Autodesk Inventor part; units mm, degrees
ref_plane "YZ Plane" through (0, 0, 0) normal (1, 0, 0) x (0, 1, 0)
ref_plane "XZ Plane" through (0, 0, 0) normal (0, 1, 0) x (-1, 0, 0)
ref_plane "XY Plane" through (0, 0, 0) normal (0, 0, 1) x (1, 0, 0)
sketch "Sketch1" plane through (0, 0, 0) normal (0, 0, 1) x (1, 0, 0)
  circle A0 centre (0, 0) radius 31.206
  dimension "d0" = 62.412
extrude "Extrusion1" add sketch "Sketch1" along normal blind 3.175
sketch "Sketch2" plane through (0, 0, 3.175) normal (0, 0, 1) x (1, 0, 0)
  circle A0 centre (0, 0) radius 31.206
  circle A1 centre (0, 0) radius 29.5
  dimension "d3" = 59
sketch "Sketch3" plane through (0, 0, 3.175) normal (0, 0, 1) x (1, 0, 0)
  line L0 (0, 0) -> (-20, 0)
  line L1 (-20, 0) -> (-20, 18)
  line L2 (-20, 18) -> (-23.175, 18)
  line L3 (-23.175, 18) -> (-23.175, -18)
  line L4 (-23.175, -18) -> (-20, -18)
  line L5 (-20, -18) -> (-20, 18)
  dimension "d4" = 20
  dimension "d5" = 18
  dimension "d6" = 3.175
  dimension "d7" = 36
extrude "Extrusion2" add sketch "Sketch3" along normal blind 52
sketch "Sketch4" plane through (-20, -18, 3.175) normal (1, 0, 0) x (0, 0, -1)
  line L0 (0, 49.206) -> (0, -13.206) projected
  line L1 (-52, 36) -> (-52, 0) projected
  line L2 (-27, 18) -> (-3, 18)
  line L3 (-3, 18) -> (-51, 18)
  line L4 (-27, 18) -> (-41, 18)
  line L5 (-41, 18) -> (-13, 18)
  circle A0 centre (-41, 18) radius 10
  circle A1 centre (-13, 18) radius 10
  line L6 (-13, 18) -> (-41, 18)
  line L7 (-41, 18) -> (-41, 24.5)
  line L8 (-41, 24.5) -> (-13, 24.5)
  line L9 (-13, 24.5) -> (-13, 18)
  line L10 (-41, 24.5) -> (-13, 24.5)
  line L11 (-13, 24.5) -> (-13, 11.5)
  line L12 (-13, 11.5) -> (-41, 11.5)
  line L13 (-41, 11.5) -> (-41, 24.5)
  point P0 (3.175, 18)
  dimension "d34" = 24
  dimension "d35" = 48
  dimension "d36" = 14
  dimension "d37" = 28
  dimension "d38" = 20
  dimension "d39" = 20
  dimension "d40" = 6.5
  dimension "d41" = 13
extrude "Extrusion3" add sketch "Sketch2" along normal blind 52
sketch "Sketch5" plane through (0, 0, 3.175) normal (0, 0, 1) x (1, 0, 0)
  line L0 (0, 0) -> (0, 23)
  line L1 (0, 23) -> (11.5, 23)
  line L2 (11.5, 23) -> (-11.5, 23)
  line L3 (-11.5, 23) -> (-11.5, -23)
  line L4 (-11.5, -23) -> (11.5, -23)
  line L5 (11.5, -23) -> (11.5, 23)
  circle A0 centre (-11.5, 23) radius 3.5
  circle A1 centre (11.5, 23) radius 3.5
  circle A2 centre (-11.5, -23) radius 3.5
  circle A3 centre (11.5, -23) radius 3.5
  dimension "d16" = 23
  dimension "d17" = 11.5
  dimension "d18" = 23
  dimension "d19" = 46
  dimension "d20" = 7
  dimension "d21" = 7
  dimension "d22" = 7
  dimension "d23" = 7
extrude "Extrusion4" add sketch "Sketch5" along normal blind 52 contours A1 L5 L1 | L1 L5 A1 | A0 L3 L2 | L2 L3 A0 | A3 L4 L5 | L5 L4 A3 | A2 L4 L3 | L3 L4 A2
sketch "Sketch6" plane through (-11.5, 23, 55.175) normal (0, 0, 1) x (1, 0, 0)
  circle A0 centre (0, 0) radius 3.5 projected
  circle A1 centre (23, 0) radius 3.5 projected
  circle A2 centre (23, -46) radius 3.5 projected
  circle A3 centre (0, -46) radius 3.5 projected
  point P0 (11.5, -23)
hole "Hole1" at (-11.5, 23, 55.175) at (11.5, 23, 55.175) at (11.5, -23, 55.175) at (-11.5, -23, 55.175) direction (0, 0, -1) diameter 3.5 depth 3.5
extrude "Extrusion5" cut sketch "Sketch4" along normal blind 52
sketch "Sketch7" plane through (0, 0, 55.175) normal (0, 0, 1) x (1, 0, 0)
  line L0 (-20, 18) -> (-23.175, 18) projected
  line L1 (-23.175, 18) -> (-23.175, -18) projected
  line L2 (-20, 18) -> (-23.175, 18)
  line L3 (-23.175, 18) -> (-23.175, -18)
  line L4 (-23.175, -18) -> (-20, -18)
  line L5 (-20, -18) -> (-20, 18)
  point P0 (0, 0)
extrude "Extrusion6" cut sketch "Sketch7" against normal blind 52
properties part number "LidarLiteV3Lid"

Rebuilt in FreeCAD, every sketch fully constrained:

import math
import FreeCAD as App
import Part
import Sketcher
from FreeCAD import Vector
Q = App.Units.Quantity


def add_polygon(sketch, points):
    """Adds a closed chain of lines whose ends are joined by coincident constraints."""
    first, n = sketch.GeometryCount, len(points)
    for a, b in zip(points, points[1:] + points[:1]):
        sketch.addGeometry(Part.LineSegment(App.Vector(*a, 0), App.Vector(*b, 0)), False)
    for i in range(n):
        sketch.addConstraint(Sketcher.Constraint("Coincident", first + i, 2, first + (i + 1) % n, 1))

doc = App.newDocument("Part")
body = doc.addObject("PartDesign::Body", "Body")

sketch1 = doc.addObject("Sketcher::SketchObject", "Sketch")
body.addObject(sketch1)
sketch1.AttachmentSupport = (doc.XY_Plane, [""])
sketch1.MapMode = "FlatFace"
sketch1.addGeometry(Part.Circle(Vector(0, 0, 0), Vector(0, 0, 1), 31.206), False)
sketch1.addConstraint([
    Sketcher.Constraint("Coincident", 0, 3, -1, 1),
    Sketcher.Constraint("Diameter", 0, Q("62.412 mm")),
])
pad1 = doc.addObject("PartDesign::Pad", "Pad")
body.addObject(pad1)
pad1.Profile = sketch1
pad1.Length = 3.175

sketch2 = doc.addObject("Sketcher::SketchObject", "Sketch001")
body.addObject(sketch2)
sketch2.AttachmentSupport = (doc.XY_Plane, [""])
sketch2.MapMode = "FlatFace"
sketch2.AttachmentOffset = App.Placement(Vector(0, 0, 3.175), App.Rotation())
add_polygon(sketch2, [(-20, -18), (-20, 18), (-23.175, 18), (-23.175, -18)])
sketch2.addConstraint([
    Sketcher.Constraint("Vertical", 0),
    Sketcher.Constraint("Horizontal", 1),
    Sketcher.Constraint("Vertical", 2),
    Sketcher.Constraint("Horizontal", 3),
    Sketcher.Constraint("DistanceY", 0, 1, 0, 2, Q("36 mm")),
    Sketcher.Constraint("DistanceX", 0, 2, -1, 1, Q("20 mm")),
    Sketcher.Constraint("DistanceY", -1, 1, 0, 2, Q("18 mm")),
    Sketcher.Constraint("DistanceX", 1, 2, 1, 1, Q("3.175 mm")),
])
pad2 = doc.addObject("PartDesign::Pad", "Pad001")
body.addObject(pad2)
pad2.Profile = sketch2
pad2.Length = 52

sketch3 = doc.addObject("Sketcher::SketchObject", "Sketch002")
body.addObject(sketch3)
sketch3.AttachmentSupport = (doc.XY_Plane, [""])
sketch3.MapMode = "FlatFace"
sketch3.AttachmentOffset = App.Placement(Vector(0, 0, 3.175), App.Rotation())
sketch3.addGeometry([
    Part.Circle(Vector(0, 0, 0), Vector(0, 0, 1), 31.206),
    Part.Circle(Vector(0, 0, 0), Vector(0, 0, 1), 29.5),
], False)
sketch3.addConstraint([
    Sketcher.Constraint("Coincident", 0, 3, -1, 1),
    Sketcher.Constraint("Coincident", 1, 3, -1, 1),
    Sketcher.Constraint("Diameter", 1, Q("59 mm")),
    Sketcher.Constraint("Diameter", 0, Q("62.412 mm")),
])
pad3 = doc.addObject("PartDesign::Pad", "Pad002")
body.addObject(pad3)
pad3.Profile = sketch3
pad3.Length = 52

sketch4 = doc.addObject("Sketcher::SketchObject", "Sketch003")
body.addObject(sketch4)
sketch4.AttachmentSupport = (doc.XY_Plane, [""])
sketch4.MapMode = "FlatFace"
sketch4.AttachmentOffset = App.Placement(Vector(0, 0, 3.175), App.Rotation())
sketch4.addGeometry([
    Part.Circle(Vector(11.5, 23, 0), Vector(0, 0, 1), 3.5),
    Part.Circle(Vector(-11.5, 23, 0), Vector(0, 0, 1), 3.5),
    Part.Circle(Vector(11.5, -23, 0), Vector(0, 0, 1), 3.5),
    Part.Circle(Vector(-11.5, -23, 0), Vector(0, 0, 1), 3.5),
], False)
sketch4.addConstraint([
    Sketcher.Constraint("Equal", 0, 1),
    Sketcher.Constraint("Equal", 1, 2),
    Sketcher.Constraint("Equal", 2, 3),
    Sketcher.Constraint("Symmetric", 1, 3, 2, 3, -1, 1),
    Sketcher.Constraint("Symmetric", 0, 3, 3, 3, -1, 1),
    Sketcher.Constraint("Symmetric", 0, 3, 1, 3, -2),
    Sketcher.Constraint("Diameter", 0, Q("7 mm")),
    Sketcher.Constraint("DistanceY", -1, 1, 0, 3, Q("23 mm")),
    Sketcher.Constraint("DistanceX", 1, 3, 0, 3, Q("23 mm")),
])
pad4 = doc.addObject("PartDesign::Pad", "Pad003")
body.addObject(pad4)
pad4.Profile = sketch4
pad4.Length = 52

sketch5 = doc.addObject("Sketcher::SketchObject", "Sketch004")
body.addObject(sketch5)
sketch5.AttachmentSupport = (doc.XY_Plane, [""])
sketch5.MapMode = "FlatFace"
sketch5.AttachmentOffset = App.Placement(Vector(0, 0, 55.175), App.Rotation())
sketch5.addGeometry([
    Part.Circle(Vector(-11.5, 23, 0), Vector(0, 0, 1), 1.75),
    Part.Circle(Vector(11.5, 23, 0), Vector(0, 0, 1), 1.75),
    Part.Circle(Vector(11.5, -23, 0), Vector(0, 0, 1), 1.75),
    Part.Circle(Vector(-11.5, -23, 0), Vector(0, 0, 1), 1.75),
], False)
sketch5.addConstraint([
    Sketcher.Constraint("Equal", 0, 1),
    Sketcher.Constraint("Equal", 1, 2),
    Sketcher.Constraint("Equal", 2, 3),
    Sketcher.Constraint("Symmetric", 0, 3, 2, 3, -1, 1),
    Sketcher.Constraint("Symmetric", 1, 3, 3, 3, -1, 1),
    Sketcher.Constraint("Symmetric", 0, 3, 1, 3, -2),
    Sketcher.Constraint("Diameter", 0, Q("3.5 mm")),
    Sketcher.Constraint("DistanceY", -1, 1, 0, 3, Q("23 mm")),
    Sketcher.Constraint("DistanceX", 0, 3, 1, 3, Q("23 mm")),
])
doc.recompute()
hole = doc.addObject("PartDesign::Hole", "Hole")
body.addObject(hole)
hole.Profile = sketch5
hole.ThreadType = "None"
hole.Diameter = 3.5
hole.DepthType = "Dimension"
hole.Depth = 3.5
hole.DrillPoint = "Flat"

sketch6 = doc.addObject("Sketcher::SketchObject", "Sketch005")
body.addObject(sketch6)
sketch6.AttachmentSupport = (doc.YZ_Plane, [""])
sketch6.MapMode = "FlatFace"
sketch6.AttachmentOffset = App.Placement(Vector(0, 0, -20), App.Rotation())
sketch6.addGeometry([
    Part.LineSegment(Vector(6.5, 23.774342, 0), Vector(6.5, 36.575658, 0)),
    Part.ArcOfCircle(Part.Circle(Vector(0, 44.175, 0), Vector(0, 0, 1), 10), math.radians(-49.458398), math.radians(229.458398)),
    Part.LineSegment(Vector(-6.5, 36.575658, 0), Vector(-6.5, 23.774342, 0)),
    Part.ArcOfCircle(Part.Circle(Vector(0, 16.175, 0), Vector(0, 0, 1), 10), math.radians(130.541602), math.radians(409.458398)),
], False)
sketch6.addConstraint([
    Sketcher.Constraint("Coincident", 0, 2, 1, 1),
    Sketcher.Constraint("Coincident", 1, 2, 2, 1),
    Sketcher.Constraint("Coincident", 2, 2, 3, 1),
    Sketcher.Constraint("Coincident", 3, 2, 0, 1),
    Sketcher.Constraint("Vertical", 0),
    Sketcher.Constraint("Vertical", 2),
    Sketcher.Constraint("Equal", 1, 3),
    Sketcher.Constraint("Symmetric", 0, 2, 1, 2, -2),
    Sketcher.Constraint("PointOnObject", 3, 3, -2),
    Sketcher.Constraint("Radius", 1, Q("10 mm")),
    Sketcher.Constraint("DistanceY", 3, 3, 1, 3, Q("28 mm")),
    Sketcher.Constraint("DistanceX", 1, 2, 0, 2, Q("13 mm")),
    Sketcher.Constraint("DistanceY", -1, 1, 1, 3, Q("44.175 mm")),
])
pocket1 = doc.addObject("PartDesign::Pocket", "Pocket")
body.addObject(pocket1)
pocket1.Profile = sketch6
pocket1.Length = 52
pocket1.Reversed = True

sketch7 = doc.addObject("Sketcher::SketchObject", "Sketch006")
body.addObject(sketch7)
sketch7.AttachmentSupport = (doc.XY_Plane, [""])
sketch7.MapMode = "FlatFace"
sketch7.AttachmentOffset = App.Placement(Vector(0, 0, 55.175), App.Rotation())
add_polygon(sketch7, [(-20, -18), (-20, 18), (-23.175, 18), (-23.175, -18)])
sketch7.addConstraint([
    Sketcher.Constraint("Vertical", 0),
    Sketcher.Constraint("Horizontal", 1),
    Sketcher.Constraint("Vertical", 2),
    Sketcher.Constraint("Horizontal", 3),
    Sketcher.Constraint("DistanceY", 0, 1, 0, 2, Q("36 mm")),
    Sketcher.Constraint("DistanceX", 0, 2, -1, 1, Q("20 mm")),
    Sketcher.Constraint("DistanceY", -1, 1, 0, 2, Q("18 mm")),
    Sketcher.Constraint("DistanceX", 1, 2, 1, 1, Q("3.175 mm")),
])
pocket2 = doc.addObject("PartDesign::Pocket", "Pocket001")
body.addObject(pocket2)
pocket2.Profile = sketch7
pocket2.Length = 52

doc.recompute()
